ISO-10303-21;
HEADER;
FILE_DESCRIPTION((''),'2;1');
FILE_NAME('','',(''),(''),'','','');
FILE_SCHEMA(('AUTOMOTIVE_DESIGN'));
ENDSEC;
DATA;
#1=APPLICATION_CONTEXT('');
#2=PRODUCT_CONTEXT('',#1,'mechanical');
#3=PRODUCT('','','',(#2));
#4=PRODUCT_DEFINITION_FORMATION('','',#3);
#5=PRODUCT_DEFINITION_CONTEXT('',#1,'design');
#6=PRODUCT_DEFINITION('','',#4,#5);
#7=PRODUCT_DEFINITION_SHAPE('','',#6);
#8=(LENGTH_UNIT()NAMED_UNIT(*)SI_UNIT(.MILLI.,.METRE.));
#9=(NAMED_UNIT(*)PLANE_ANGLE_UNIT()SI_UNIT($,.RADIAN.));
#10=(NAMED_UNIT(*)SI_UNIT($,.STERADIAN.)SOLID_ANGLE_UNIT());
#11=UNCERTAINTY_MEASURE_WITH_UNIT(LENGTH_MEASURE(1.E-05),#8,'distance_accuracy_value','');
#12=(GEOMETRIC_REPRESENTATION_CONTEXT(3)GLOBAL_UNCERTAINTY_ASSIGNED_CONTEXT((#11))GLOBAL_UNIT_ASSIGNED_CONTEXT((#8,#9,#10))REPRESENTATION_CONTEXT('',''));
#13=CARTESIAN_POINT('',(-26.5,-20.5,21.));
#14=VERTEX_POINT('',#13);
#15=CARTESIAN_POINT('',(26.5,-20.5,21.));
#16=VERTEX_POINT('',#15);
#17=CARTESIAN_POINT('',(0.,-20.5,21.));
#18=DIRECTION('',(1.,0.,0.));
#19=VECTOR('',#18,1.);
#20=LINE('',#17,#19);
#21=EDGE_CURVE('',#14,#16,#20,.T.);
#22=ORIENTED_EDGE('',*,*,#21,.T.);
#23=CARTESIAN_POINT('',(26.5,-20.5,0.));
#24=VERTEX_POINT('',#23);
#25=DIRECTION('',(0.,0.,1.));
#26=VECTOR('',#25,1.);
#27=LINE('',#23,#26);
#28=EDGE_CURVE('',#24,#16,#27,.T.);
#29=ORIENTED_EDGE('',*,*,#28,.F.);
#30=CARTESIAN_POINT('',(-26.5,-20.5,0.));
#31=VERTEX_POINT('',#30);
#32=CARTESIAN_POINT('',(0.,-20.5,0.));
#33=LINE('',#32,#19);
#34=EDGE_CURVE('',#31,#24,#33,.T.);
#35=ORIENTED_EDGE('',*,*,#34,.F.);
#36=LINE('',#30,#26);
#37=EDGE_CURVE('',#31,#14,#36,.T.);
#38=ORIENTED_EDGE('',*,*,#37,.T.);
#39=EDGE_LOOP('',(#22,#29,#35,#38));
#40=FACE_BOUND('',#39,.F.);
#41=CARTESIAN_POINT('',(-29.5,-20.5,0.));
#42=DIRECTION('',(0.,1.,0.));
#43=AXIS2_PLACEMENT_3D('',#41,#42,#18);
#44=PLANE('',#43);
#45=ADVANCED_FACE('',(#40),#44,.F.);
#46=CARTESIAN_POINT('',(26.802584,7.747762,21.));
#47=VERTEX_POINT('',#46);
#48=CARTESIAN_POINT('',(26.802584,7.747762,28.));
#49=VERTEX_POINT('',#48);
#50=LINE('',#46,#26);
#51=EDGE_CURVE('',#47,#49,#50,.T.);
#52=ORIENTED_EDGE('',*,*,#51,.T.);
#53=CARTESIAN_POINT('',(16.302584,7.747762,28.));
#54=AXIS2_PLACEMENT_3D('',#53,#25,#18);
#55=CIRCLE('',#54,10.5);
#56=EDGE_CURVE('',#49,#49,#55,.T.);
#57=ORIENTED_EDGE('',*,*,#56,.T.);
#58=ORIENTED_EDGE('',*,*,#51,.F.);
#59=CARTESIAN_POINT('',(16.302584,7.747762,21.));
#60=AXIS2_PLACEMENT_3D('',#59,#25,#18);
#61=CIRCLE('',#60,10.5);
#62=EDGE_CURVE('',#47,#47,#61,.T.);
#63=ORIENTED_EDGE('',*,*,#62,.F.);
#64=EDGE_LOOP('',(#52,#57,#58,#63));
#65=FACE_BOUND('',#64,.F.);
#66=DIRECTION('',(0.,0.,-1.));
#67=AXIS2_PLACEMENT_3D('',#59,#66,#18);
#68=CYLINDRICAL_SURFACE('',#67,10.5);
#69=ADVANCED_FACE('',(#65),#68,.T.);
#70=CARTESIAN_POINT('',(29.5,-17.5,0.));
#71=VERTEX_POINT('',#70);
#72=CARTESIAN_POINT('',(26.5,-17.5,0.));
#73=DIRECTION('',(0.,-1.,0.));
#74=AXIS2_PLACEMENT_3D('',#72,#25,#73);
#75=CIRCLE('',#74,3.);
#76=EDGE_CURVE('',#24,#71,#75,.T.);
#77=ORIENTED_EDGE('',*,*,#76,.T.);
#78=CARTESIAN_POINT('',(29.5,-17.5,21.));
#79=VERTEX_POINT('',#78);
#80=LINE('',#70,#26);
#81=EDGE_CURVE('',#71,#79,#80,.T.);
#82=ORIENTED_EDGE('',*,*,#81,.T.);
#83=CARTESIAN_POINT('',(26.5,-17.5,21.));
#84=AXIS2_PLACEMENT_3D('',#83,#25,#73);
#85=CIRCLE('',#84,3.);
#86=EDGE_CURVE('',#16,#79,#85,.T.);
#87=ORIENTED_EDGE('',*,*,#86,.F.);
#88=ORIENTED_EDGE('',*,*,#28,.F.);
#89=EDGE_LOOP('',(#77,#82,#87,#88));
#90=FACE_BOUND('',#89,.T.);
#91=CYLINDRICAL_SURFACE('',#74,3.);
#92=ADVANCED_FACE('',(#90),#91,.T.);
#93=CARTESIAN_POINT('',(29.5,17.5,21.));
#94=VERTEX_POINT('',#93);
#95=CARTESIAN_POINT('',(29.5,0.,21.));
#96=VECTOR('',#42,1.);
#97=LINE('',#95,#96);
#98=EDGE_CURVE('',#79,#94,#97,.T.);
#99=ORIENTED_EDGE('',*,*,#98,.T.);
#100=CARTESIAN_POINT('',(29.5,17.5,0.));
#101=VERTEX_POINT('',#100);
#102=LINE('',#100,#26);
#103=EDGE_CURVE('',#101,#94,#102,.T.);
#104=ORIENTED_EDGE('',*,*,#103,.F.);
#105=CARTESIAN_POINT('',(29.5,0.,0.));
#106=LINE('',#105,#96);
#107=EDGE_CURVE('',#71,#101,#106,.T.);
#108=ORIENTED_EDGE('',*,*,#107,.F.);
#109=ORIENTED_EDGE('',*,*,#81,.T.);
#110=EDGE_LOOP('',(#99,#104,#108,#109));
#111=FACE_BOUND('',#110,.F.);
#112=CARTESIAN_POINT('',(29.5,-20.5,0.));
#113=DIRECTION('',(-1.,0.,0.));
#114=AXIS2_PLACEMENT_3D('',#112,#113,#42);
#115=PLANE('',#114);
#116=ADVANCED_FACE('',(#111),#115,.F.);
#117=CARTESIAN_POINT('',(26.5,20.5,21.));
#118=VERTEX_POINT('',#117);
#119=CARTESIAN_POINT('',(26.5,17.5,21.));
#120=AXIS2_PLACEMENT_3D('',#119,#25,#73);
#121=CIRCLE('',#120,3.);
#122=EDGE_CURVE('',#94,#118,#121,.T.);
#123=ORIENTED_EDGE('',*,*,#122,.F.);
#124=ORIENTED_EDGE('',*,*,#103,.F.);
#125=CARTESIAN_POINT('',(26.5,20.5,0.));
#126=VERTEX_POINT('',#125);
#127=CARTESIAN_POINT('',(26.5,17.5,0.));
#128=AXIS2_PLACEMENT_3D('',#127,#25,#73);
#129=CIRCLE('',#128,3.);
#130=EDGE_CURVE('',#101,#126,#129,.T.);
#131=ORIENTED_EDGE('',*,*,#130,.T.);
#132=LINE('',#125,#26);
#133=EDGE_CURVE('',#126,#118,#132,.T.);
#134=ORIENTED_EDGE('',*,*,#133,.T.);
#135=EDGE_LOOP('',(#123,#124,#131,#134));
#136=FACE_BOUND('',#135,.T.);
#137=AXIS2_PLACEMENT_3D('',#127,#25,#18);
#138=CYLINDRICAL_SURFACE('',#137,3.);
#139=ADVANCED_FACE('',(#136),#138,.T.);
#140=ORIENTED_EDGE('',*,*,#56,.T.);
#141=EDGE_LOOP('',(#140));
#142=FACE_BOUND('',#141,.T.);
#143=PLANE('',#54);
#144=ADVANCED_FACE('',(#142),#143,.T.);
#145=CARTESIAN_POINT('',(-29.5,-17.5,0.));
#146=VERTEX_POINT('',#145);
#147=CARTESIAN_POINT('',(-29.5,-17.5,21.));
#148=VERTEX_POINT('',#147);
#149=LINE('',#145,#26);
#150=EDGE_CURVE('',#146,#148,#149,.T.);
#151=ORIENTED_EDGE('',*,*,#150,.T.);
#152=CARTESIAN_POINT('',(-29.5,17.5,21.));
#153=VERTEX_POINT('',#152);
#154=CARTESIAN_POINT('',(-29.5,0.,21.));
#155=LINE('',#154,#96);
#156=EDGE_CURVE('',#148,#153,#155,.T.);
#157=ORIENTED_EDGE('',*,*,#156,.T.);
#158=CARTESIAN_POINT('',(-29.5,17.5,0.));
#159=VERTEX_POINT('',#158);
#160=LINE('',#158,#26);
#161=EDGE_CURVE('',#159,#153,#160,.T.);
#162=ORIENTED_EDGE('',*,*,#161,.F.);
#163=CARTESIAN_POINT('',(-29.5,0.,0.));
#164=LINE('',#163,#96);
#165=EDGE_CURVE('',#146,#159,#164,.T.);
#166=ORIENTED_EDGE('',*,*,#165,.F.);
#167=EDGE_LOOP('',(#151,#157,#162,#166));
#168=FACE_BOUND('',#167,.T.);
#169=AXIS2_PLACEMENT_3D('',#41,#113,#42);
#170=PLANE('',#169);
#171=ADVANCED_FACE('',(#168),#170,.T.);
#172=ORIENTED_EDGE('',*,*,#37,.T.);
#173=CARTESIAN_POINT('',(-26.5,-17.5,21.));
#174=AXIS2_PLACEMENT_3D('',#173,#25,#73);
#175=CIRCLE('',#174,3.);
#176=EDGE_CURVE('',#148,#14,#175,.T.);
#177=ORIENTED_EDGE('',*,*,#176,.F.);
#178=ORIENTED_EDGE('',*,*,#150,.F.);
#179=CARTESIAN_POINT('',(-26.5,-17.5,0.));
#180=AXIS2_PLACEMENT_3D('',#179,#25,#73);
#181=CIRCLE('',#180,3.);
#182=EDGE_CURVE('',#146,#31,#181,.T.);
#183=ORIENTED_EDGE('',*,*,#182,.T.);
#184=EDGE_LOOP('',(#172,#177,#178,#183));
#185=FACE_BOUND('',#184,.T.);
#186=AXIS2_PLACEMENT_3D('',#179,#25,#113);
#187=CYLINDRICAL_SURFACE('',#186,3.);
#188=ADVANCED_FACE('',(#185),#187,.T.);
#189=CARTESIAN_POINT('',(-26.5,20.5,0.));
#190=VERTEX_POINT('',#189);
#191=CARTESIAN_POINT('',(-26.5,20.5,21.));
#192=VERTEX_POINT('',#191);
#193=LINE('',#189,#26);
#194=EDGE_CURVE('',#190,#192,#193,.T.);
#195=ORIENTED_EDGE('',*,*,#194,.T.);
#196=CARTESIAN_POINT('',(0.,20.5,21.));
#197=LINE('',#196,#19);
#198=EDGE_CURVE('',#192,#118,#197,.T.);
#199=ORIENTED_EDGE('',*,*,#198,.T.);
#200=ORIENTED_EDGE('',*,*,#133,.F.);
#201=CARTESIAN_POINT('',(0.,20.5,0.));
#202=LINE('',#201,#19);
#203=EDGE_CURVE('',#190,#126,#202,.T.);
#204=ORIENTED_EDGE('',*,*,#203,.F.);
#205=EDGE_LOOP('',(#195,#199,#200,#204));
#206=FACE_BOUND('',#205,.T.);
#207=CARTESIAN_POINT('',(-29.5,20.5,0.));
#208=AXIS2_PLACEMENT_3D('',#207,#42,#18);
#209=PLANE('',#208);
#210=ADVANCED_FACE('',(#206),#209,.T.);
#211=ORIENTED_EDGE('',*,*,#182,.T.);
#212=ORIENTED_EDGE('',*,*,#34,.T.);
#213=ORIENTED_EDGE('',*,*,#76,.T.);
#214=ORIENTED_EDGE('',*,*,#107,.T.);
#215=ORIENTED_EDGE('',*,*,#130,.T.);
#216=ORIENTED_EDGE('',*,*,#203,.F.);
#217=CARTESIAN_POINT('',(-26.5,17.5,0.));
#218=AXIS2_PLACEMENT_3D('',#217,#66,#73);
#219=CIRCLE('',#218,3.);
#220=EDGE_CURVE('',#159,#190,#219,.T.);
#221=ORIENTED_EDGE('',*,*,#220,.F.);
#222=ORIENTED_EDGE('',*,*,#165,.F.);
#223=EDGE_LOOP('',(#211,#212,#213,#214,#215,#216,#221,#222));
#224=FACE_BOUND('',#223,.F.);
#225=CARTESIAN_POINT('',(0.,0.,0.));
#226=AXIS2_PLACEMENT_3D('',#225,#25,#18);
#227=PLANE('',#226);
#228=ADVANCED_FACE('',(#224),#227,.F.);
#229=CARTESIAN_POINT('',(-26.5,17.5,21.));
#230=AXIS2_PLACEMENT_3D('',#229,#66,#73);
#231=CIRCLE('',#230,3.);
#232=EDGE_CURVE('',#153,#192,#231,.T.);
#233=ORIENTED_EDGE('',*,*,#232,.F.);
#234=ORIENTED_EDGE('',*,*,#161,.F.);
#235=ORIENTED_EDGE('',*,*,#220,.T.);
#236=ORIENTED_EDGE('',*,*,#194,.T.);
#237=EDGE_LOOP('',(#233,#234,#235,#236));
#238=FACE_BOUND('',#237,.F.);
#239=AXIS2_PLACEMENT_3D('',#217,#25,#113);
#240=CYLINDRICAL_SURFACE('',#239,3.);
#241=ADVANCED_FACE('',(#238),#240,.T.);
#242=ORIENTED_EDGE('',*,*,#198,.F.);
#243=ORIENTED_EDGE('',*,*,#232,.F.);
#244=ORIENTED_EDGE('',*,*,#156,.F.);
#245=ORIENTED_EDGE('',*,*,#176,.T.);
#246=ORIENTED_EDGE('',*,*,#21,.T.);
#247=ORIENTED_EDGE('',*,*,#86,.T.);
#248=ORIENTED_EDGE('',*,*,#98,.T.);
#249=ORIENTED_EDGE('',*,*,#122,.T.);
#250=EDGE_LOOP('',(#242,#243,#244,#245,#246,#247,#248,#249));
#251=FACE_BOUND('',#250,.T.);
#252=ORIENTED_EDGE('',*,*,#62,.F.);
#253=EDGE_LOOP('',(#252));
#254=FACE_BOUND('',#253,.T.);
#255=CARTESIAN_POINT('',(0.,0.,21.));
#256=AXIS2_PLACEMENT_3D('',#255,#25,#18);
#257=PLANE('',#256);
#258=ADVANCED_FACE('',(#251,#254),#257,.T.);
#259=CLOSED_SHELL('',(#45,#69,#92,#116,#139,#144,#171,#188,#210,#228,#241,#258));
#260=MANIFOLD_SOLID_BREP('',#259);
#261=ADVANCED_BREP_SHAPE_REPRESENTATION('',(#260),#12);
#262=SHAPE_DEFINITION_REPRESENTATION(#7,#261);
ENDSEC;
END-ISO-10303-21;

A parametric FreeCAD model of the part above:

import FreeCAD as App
import Part
import Sketcher
Q = App.Units.Quantity


def edges_at(feature, points):
    """Names of the edges that pass closest to the given points."""
    edges = feature.Shape.Edges
    near = lambda p: min(range(len(edges)), key=lambda i: edges[i].distToShape(Part.Vertex(*p))[0])
    return sorted({f"Edge{near(p) + 1}" for p in points})

doc = App.newDocument("Part")
body = doc.addObject("PartDesign::Body", "Body")

sketch1 = body.newObject("Sketcher::SketchObject", "Sketch")
sketch1.AttachmentSupport = (doc.getObject("XY_Plane"), [""])
sketch1.MapMode = "FlatFace"
sketch1.addGeometry(Part.LineSegment(App.Vector(-30, 20, 0), App.Vector(-30, -20, 0)), False)
sketch1.addGeometry(Part.LineSegment(App.Vector(-30, -20, 0), App.Vector(30, -20, 0)), False)
sketch1.addGeometry(Part.LineSegment(App.Vector(30, -20, 0), App.Vector(30, 20, 0)), False)
sketch1.addGeometry(Part.LineSegment(App.Vector(30, 20, 0), App.Vector(-30, 20, 0)), False)
sketch1.addConstraint(Sketcher.Constraint("Coincident", 0, 2, 1, 1))
sketch1.addConstraint(Sketcher.Constraint("Coincident", 1, 2, 2, 1))
sketch1.addConstraint(Sketcher.Constraint("Coincident", 2, 2, 3, 1))
sketch1.addConstraint(Sketcher.Constraint("Coincident", 3, 2, 0, 1))
sketch1.addConstraint(Sketcher.Constraint("Vertical", 0))
sketch1.addConstraint(Sketcher.Constraint("Horizontal", 1))
sketch1.addConstraint(Sketcher.Constraint("Vertical", 2))
sketch1.addConstraint(Sketcher.Constraint("Horizontal", 3))
sketch1.addConstraint(Sketcher.Constraint("Symmetric", 0, 2, 2, 2, -1, 1))
sketch1.addConstraint(Sketcher.Constraint("DistanceX", 1, 1, 1, 2, Q("59 mm")))
sketch1.addConstraint(Sketcher.Constraint("DistanceY", 0, 2, 0, 1, Q("41 mm")))
pad1 = body.newObject("PartDesign::Pad", "Pad")
pad1.Profile = sketch1
pad1.Length = 21
doc.recompute()

fillet = body.newObject("PartDesign::Fillet", "Fillet")
fillet.Base = (pad1, edges_at(pad1, [
    (-29.5, -20.5, 10.5),
    (-29.5, 20.5, 10.5),
    (29.5, -20.5, 10.5),
    (29.5, 20.5, 10.5),
]))
fillet.Radius = 3

sketch2 = body.newObject("Sketcher::SketchObject", "Sketch001")
sketch2.AttachmentSupport = (doc.getObject("XY_Plane"), [""])
sketch2.MapMode = "FlatFace"
sketch2.AttachmentOffset = App.Placement(App.Vector(0, 0, 21), App.Rotation())
sketch2.addGeometry(Part.Circle(App.Vector(16, 8, 0), App.Vector(0, 0, 1), 10), False)
sketch2.addConstraint(Sketcher.Constraint("Diameter", 0, Q("21 mm")))
sketch2.addConstraint(Sketcher.Constraint("DistanceY", -1, 1, 0, 3, Q("7.747762 mm")))
sketch2.addConstraint(Sketcher.Constraint("DistanceX", -1, 1, 0, 3, Q("16.302584 mm")))
pad2 = body.newObject("PartDesign::Pad", "Pad001")
pad2.Profile = sketch2
pad2.Length = 7

doc.recompute()
